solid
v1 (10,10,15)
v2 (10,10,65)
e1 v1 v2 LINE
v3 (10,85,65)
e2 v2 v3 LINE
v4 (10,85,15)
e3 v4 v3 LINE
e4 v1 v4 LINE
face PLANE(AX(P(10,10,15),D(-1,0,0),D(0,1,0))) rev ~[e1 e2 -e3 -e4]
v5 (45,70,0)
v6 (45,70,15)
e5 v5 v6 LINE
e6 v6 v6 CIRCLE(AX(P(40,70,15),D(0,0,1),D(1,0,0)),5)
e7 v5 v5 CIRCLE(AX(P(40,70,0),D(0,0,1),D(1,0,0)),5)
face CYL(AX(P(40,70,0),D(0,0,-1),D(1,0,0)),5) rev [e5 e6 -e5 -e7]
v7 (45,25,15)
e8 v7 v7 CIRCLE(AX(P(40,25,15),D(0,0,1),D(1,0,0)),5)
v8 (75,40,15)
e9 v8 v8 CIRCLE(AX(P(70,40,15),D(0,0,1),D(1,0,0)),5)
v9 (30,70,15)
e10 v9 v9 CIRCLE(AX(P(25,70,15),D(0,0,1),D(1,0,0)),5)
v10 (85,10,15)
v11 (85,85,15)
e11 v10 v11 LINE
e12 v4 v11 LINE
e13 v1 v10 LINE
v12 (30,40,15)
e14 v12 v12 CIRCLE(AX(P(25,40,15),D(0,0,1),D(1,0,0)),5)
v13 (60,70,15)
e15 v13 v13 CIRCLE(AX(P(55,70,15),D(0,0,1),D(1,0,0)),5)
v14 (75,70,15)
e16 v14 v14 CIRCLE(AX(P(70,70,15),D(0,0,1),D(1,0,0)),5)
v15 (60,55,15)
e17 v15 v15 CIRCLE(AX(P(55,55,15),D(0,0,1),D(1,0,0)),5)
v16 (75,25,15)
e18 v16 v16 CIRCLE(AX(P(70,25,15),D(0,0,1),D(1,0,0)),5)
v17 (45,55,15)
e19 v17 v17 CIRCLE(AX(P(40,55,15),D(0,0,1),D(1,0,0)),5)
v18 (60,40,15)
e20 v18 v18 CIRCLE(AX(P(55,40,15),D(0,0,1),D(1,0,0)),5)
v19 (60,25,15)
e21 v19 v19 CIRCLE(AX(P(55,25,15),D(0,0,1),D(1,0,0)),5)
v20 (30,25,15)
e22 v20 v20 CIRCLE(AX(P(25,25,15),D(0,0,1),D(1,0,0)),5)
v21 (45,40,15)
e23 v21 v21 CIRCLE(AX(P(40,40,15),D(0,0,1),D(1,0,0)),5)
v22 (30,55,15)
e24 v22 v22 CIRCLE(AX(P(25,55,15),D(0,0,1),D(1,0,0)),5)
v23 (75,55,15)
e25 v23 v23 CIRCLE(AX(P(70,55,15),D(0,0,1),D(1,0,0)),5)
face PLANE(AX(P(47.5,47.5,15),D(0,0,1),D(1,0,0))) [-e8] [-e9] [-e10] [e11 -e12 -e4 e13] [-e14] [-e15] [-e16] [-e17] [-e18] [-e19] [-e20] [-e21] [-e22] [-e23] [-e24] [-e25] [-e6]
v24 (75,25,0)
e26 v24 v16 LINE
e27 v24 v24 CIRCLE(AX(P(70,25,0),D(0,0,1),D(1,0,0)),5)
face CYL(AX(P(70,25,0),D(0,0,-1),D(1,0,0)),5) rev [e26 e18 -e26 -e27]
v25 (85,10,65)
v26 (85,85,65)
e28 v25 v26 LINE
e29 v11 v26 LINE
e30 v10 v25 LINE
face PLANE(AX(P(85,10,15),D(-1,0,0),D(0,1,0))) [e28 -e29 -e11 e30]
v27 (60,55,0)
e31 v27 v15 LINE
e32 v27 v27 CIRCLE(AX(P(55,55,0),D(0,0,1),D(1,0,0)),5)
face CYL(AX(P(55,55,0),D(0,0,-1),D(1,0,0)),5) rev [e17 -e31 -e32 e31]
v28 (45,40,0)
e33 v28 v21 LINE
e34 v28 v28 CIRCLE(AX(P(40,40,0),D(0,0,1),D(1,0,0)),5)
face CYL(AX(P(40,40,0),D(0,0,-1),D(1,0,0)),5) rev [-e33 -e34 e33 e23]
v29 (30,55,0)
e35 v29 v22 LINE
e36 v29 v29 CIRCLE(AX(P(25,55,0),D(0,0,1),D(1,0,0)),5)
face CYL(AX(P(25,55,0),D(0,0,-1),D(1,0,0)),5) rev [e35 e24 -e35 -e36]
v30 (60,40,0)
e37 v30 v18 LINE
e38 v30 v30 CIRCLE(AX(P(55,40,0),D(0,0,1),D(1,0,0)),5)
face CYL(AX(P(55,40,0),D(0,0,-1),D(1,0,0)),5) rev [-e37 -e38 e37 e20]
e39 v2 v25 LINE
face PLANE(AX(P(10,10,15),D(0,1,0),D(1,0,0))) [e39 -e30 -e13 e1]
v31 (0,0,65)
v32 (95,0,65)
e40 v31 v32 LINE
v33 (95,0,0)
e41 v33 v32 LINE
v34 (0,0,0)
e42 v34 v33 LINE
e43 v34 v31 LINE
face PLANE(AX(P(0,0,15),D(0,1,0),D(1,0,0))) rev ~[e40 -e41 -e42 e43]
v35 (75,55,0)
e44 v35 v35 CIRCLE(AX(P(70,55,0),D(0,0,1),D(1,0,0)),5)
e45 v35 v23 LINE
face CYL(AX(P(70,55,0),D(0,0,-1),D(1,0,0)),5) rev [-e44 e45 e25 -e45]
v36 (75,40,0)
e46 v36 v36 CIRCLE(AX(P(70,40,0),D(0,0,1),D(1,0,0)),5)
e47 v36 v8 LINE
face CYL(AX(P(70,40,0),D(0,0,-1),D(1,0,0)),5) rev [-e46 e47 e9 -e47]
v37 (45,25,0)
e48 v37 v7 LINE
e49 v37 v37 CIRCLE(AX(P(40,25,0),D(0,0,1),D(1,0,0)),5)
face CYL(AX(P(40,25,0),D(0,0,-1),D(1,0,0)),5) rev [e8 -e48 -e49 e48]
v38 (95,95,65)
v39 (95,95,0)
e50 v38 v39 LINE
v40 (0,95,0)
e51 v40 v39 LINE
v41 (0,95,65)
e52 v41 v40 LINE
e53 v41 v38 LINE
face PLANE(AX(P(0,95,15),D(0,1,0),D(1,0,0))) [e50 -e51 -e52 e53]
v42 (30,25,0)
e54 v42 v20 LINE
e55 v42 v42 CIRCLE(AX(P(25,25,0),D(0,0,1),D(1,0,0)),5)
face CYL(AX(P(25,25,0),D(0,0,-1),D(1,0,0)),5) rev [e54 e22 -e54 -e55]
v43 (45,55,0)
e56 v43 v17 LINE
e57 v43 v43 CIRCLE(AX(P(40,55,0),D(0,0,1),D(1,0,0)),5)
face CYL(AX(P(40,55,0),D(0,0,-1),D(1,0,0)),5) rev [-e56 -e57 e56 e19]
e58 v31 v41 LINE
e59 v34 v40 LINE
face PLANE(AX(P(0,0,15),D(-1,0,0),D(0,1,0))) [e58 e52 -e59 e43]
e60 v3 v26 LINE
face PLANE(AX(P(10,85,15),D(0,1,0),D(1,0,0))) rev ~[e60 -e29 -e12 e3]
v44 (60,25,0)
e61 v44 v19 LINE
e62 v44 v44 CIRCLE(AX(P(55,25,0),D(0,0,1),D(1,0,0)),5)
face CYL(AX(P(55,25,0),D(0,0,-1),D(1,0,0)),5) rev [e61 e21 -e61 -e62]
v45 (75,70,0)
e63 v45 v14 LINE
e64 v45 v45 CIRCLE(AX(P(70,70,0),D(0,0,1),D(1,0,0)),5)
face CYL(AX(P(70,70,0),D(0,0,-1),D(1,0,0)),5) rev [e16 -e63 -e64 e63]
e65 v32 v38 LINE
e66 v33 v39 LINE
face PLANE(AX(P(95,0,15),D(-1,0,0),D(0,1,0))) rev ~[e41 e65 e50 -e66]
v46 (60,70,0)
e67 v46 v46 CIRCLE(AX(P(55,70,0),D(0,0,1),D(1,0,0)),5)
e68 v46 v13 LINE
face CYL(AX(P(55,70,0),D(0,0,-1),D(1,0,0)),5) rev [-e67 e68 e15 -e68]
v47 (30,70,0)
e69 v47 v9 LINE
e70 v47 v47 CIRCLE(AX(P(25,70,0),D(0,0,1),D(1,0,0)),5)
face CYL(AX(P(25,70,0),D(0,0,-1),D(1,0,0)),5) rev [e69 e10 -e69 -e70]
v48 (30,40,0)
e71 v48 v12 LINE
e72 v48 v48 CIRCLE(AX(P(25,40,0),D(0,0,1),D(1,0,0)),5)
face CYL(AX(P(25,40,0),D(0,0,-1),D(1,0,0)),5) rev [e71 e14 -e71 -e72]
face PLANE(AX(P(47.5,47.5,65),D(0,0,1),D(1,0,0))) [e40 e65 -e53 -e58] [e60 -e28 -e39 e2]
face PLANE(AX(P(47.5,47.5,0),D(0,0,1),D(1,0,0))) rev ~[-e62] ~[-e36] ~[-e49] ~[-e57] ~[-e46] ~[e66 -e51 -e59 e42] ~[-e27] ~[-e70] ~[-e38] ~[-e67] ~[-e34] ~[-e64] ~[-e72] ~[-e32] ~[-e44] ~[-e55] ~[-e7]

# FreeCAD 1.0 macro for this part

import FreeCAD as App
import Part
import Sketcher
Q = App.Units.Quantity

doc = App.newDocument("Part")
params = doc.addObject("Spreadsheet::Sheet", "Params")
for row, (alias, value) in enumerate([
    ("sketch1_diameter", "10 mm"),
    ("sketch1_width", "95 mm"),
    ("pad1_length", "15 mm"),
    ("sketch2_width", "95 mm"),
    ("sketch2_width2", "75 mm"),
    ("pad2_length", "50 mm"),
], start=1):
    params.set(f"A{row}", alias)
    params.set(f"B{row}", "=" + value)
    params.setAlias(f"B{row}", alias)

body = doc.addObject("PartDesign::Body", "Body")

# Sketch on XY plane
sketch1 = body.newObject("Sketcher::SketchObject", "Sketch")
sketch1.AttachmentSupport = (doc.getObject("XY_Plane"), [""])
sketch1.MapMode = "FlatFace"
sketch1.addGeometry([
    Part.LineSegment(App.Vector(0, 95, 0), App.Vector(0, 0, 0)),  # 0
    Part.LineSegment(App.Vector(0, 0, 0), App.Vector(95, 0, 0)),  # 1
    Part.LineSegment(App.Vector(95, 0, 0), App.Vector(95, 95, 0)),  # 2
    Part.LineSegment(App.Vector(95, 95, 0), App.Vector(0, 95, 0)),  # 3
    Part.Circle(App.Vector(25, 25, 0), App.Vector(0, 0, 1), 5),  # 4
    Part.Circle(App.Vector(40, 25, 0), App.Vector(0, 0, 1), 5),  # 5
    Part.Circle(App.Vector(25, 40, 0), App.Vector(0, 0, 1), 5),  # 6
    Part.Circle(App.Vector(40, 40, 0), App.Vector(0, 0, 1), 5),  # 7
    Part.Circle(App.Vector(55, 25, 0), App.Vector(0, 0, 1), 5),  # 8
    Part.Circle(App.Vector(70, 25, 0), App.Vector(0, 0, 1), 5),  # 9
    Part.Circle(App.Vector(55, 40, 0), App.Vector(0, 0, 1), 5),  # 10
    Part.Circle(App.Vector(70, 40, 0), App.Vector(0, 0, 1), 5),  # 11
    Part.Circle(App.Vector(25, 55, 0), App.Vector(0, 0, 1), 5),  # 12
    Part.Circle(App.Vector(40, 55, 0), App.Vector(0, 0, 1), 5),  # 13
    Part.Circle(App.Vector(25, 70, 0), App.Vector(0, 0, 1), 5),  # 14
    Part.Circle(App.Vector(40, 70, 0), App.Vector(0, 0, 1), 5),  # 15
    Part.Circle(App.Vector(55, 55, 0), App.Vector(0, 0, 1), 5),  # 16
    Part.Circle(App.Vector(70, 55, 0), App.Vector(0, 0, 1), 5),  # 17
    Part.Circle(App.Vector(55, 70, 0), App.Vector(0, 0, 1), 5),  # 18
    Part.Circle(App.Vector(70, 70, 0), App.Vector(0, 0, 1), 5),  # 19
], False)
sketch1.addConstraint([
    Sketcher.Constraint("Coincident", 0, 2, 1, 1),
    Sketcher.Constraint("Coincident", 1, 2, 2, 1),
    Sketcher.Constraint("Coincident", 2, 2, 3, 1),
    Sketcher.Constraint("Coincident", 3, 2, 0, 1),
    Sketcher.Constraint("Vertical", 0),
    Sketcher.Constraint("Horizontal", 1),
    Sketcher.Constraint("Vertical", 2),
    Sketcher.Constraint("Horizontal", 3),
    Sketcher.Constraint("Coincident", 0, 2, -1, 1),
    Sketcher.Constraint("Equal", 4, 5),
    Sketcher.Constraint("Equal", 5, 6),
    Sketcher.Constraint("Equal", 6, 7),
    Sketcher.Constraint("Equal", 7, 8),
    Sketcher.Constraint("Equal", 8, 9),
    Sketcher.Constraint("Equal", 9, 10),
    Sketcher.Constraint("Equal", 10, 11),
    Sketcher.Constraint("Equal", 11, 12),
    Sketcher.Constraint("Equal", 12, 13),
    Sketcher.Constraint("Equal", 13, 14),
    Sketcher.Constraint("Equal", 14, 15),
    Sketcher.Constraint("Equal", 15, 16),
    Sketcher.Constraint("Equal", 16, 17),
    Sketcher.Constraint("Equal", 17, 18),
    Sketcher.Constraint("Equal", 18, 19),
    Sketcher.Constraint("Horizontal", 4, 3, 5, 3),
    Sketcher.Constraint("Horizontal", 6, 3, 7, 3),
    Sketcher.Constraint("Horizontal", 5, 3, 8, 3),
    Sketcher.Constraint("Horizontal", 8, 3, 9, 3),
    Sketcher.Constraint("Horizontal", 7, 3, 10, 3),
    Sketcher.Constraint("Horizontal", 10, 3, 11, 3),
    Sketcher.Constraint("Horizontal", 12, 3, 13, 3),
    Sketcher.Constraint("Horizontal", 14, 3, 15, 3),
    Sketcher.Constraint("Horizontal", 13, 3, 16, 3),
    Sketcher.Constraint("Horizontal", 16, 3, 17, 3),
    Sketcher.Constraint("Horizontal", 15, 3, 18, 3),
    Sketcher.Constraint("Horizontal", 18, 3, 19, 3),
    Sketcher.Constraint("Vertical", 4, 3, 6, 3),
    Sketcher.Constraint("Vertical", 5, 3, 7, 3),
    Sketcher.Constraint("Vertical", 8, 3, 10, 3),
    Sketcher.Constraint("Vertical", 9, 3, 11, 3),
    Sketcher.Constraint("Vertical", 6, 3, 12, 3),
    Sketcher.Constraint("Vertical", 7, 3, 13, 3),
    Sketcher.Constraint("Vertical", 12, 3, 14, 3),
    Sketcher.Constraint("Vertical", 13, 3, 15, 3),
    Sketcher.Constraint("Vertical", 10, 3, 16, 3),
    Sketcher.Constraint("Vertical", 11, 3, 17, 3),
    Sketcher.Constraint("Vertical", 16, 3, 18, 3),
    Sketcher.Constraint("Vertical", 17, 3, 19, 3),
    Sketcher.Constraint("Equal", 3, 0),
    Sketcher.Constraint("Diameter", 4, Q("10 mm")),
    Sketcher.Constraint("DistanceX", 1, 1, 1, 2, Q("95 mm")),
    Sketcher.Constraint("DistanceX", -1, 1, 4, 3, Q("25 mm")),
    Sketcher.Constraint("DistanceY", -1, 1, 4, 3, Q("25 mm")),
    Sketcher.Constraint("DistanceX", -1, 1, 5, 3, Q("40 mm")),
    Sketcher.Constraint("DistanceY", -1, 1, 6, 3, Q("40 mm")),
    Sketcher.Constraint("DistanceX", -1, 1, 8, 3, Q("55 mm")),
    Sketcher.Constraint("DistanceX", -1, 1, 9, 3, Q("70 mm")),
    Sketcher.Constraint("DistanceY", -1, 1, 12, 3, Q("55 mm")),
    Sketcher.Constraint("DistanceY", -1, 1, 14, 3, Q("70 mm")),
])
sketch1.setExpression("Constraints[49]", "Params.sketch1_diameter")
sketch1.setExpression("Constraints[50]", "Params.sketch1_width")
pad1 = body.newObject("PartDesign::Pad", "Pad")
pad1.Profile = sketch1
pad1.setExpression("Length", "Params.pad1_length")

# Sketch on XY plane
sketch2 = body.newObject("Sketcher::SketchObject", "Sketch001")
sketch2.AttachmentSupport = (doc.getObject("XY_Plane"), [""])
sketch2.MapMode = "FlatFace"
sketch2.AttachmentOffset = App.Placement(App.Vector(0, 0, 15), App.Rotation())
sketch2.addGeometry([
    Part.LineSegment(App.Vector(0, 95, 0), App.Vector(0, 0, 0)),  # 0
    Part.LineSegment(App.Vector(0, 0, 0), App.Vector(95, 0, 0)),  # 1
    Part.LineSegment(App.Vector(95, 0, 0), App.Vector(95, 95, 0)),  # 2
    Part.LineSegment(App.Vector(95, 95, 0), App.Vector(0, 95, 0)),  # 3
    Part.LineSegment(App.Vector(85, 10, 0), App.Vector(10, 10, 0)),  # 4
    Part.LineSegment(App.Vector(10, 10, 0), App.Vector(10, 85, 0)),  # 5
    Part.LineSegment(App.Vector(10, 85, 0), App.Vector(85, 85, 0)),  # 6
    Part.LineSegment(App.Vector(85, 85, 0), App.Vector(85, 10, 0)),  # 7
], False)
sketch2.addConstraint([
    Sketcher.Constraint("Coincident", 0, 2, 1, 1),
    Sketcher.Constraint("Coincident", 1, 2, 2, 1),
    Sketcher.Constraint("Coincident", 2, 2, 3, 1),
    Sketcher.Constraint("Coincident", 3, 2, 0, 1),
    Sketcher.Constraint("Coincident", 4, 2, 5, 1),
    Sketcher.Constraint("Coincident", 5, 2, 6, 1),
    Sketcher.Constraint("Coincident", 6, 2, 7, 1),
    Sketcher.Constraint("Coincident", 7, 2, 4, 1),
    Sketcher.Constraint("Vertical", 0),
    Sketcher.Constraint("Horizontal", 1),
    Sketcher.Constraint("Vertical", 2),
    Sketcher.Constraint("Horizontal", 3),
    Sketcher.Constraint("Horizontal", 4),
    Sketcher.Constraint("Vertical", 5),
    Sketcher.Constraint("Horizontal", 6),
    Sketcher.Constraint("Vertical", 7),
    Sketcher.Constraint("Coincident", 0, 2, -1, 1),
    Sketcher.Constraint("Equal", 3, 0),
    Sketcher.Constraint("Equal", 6, 5),
    Sketcher.Constraint("DistanceX", 1, 1, 1, 2, Q("95 mm")),
    Sketcher.Constraint("DistanceX", 4, 2, 4, 1, Q("75 mm")),
    Sketcher.Constraint("DistanceX", -1, 1, 4, 2, Q("10 mm")),
    Sketcher.Constraint("DistanceY", -1, 1, 4, 2, Q("10 mm")),
])
sketch2.setExpression("Constraints[19]", "Params.sketch2_width")
sketch2.setExpression("Constraints[20]", "Params.sketch2_width2")
pad2 = body.newObject("PartDesign::Pad", "Pad001")
pad2.Profile = sketch2
pad2.setExpression("Length", "Params.pad2_length")

doc.recompute()
